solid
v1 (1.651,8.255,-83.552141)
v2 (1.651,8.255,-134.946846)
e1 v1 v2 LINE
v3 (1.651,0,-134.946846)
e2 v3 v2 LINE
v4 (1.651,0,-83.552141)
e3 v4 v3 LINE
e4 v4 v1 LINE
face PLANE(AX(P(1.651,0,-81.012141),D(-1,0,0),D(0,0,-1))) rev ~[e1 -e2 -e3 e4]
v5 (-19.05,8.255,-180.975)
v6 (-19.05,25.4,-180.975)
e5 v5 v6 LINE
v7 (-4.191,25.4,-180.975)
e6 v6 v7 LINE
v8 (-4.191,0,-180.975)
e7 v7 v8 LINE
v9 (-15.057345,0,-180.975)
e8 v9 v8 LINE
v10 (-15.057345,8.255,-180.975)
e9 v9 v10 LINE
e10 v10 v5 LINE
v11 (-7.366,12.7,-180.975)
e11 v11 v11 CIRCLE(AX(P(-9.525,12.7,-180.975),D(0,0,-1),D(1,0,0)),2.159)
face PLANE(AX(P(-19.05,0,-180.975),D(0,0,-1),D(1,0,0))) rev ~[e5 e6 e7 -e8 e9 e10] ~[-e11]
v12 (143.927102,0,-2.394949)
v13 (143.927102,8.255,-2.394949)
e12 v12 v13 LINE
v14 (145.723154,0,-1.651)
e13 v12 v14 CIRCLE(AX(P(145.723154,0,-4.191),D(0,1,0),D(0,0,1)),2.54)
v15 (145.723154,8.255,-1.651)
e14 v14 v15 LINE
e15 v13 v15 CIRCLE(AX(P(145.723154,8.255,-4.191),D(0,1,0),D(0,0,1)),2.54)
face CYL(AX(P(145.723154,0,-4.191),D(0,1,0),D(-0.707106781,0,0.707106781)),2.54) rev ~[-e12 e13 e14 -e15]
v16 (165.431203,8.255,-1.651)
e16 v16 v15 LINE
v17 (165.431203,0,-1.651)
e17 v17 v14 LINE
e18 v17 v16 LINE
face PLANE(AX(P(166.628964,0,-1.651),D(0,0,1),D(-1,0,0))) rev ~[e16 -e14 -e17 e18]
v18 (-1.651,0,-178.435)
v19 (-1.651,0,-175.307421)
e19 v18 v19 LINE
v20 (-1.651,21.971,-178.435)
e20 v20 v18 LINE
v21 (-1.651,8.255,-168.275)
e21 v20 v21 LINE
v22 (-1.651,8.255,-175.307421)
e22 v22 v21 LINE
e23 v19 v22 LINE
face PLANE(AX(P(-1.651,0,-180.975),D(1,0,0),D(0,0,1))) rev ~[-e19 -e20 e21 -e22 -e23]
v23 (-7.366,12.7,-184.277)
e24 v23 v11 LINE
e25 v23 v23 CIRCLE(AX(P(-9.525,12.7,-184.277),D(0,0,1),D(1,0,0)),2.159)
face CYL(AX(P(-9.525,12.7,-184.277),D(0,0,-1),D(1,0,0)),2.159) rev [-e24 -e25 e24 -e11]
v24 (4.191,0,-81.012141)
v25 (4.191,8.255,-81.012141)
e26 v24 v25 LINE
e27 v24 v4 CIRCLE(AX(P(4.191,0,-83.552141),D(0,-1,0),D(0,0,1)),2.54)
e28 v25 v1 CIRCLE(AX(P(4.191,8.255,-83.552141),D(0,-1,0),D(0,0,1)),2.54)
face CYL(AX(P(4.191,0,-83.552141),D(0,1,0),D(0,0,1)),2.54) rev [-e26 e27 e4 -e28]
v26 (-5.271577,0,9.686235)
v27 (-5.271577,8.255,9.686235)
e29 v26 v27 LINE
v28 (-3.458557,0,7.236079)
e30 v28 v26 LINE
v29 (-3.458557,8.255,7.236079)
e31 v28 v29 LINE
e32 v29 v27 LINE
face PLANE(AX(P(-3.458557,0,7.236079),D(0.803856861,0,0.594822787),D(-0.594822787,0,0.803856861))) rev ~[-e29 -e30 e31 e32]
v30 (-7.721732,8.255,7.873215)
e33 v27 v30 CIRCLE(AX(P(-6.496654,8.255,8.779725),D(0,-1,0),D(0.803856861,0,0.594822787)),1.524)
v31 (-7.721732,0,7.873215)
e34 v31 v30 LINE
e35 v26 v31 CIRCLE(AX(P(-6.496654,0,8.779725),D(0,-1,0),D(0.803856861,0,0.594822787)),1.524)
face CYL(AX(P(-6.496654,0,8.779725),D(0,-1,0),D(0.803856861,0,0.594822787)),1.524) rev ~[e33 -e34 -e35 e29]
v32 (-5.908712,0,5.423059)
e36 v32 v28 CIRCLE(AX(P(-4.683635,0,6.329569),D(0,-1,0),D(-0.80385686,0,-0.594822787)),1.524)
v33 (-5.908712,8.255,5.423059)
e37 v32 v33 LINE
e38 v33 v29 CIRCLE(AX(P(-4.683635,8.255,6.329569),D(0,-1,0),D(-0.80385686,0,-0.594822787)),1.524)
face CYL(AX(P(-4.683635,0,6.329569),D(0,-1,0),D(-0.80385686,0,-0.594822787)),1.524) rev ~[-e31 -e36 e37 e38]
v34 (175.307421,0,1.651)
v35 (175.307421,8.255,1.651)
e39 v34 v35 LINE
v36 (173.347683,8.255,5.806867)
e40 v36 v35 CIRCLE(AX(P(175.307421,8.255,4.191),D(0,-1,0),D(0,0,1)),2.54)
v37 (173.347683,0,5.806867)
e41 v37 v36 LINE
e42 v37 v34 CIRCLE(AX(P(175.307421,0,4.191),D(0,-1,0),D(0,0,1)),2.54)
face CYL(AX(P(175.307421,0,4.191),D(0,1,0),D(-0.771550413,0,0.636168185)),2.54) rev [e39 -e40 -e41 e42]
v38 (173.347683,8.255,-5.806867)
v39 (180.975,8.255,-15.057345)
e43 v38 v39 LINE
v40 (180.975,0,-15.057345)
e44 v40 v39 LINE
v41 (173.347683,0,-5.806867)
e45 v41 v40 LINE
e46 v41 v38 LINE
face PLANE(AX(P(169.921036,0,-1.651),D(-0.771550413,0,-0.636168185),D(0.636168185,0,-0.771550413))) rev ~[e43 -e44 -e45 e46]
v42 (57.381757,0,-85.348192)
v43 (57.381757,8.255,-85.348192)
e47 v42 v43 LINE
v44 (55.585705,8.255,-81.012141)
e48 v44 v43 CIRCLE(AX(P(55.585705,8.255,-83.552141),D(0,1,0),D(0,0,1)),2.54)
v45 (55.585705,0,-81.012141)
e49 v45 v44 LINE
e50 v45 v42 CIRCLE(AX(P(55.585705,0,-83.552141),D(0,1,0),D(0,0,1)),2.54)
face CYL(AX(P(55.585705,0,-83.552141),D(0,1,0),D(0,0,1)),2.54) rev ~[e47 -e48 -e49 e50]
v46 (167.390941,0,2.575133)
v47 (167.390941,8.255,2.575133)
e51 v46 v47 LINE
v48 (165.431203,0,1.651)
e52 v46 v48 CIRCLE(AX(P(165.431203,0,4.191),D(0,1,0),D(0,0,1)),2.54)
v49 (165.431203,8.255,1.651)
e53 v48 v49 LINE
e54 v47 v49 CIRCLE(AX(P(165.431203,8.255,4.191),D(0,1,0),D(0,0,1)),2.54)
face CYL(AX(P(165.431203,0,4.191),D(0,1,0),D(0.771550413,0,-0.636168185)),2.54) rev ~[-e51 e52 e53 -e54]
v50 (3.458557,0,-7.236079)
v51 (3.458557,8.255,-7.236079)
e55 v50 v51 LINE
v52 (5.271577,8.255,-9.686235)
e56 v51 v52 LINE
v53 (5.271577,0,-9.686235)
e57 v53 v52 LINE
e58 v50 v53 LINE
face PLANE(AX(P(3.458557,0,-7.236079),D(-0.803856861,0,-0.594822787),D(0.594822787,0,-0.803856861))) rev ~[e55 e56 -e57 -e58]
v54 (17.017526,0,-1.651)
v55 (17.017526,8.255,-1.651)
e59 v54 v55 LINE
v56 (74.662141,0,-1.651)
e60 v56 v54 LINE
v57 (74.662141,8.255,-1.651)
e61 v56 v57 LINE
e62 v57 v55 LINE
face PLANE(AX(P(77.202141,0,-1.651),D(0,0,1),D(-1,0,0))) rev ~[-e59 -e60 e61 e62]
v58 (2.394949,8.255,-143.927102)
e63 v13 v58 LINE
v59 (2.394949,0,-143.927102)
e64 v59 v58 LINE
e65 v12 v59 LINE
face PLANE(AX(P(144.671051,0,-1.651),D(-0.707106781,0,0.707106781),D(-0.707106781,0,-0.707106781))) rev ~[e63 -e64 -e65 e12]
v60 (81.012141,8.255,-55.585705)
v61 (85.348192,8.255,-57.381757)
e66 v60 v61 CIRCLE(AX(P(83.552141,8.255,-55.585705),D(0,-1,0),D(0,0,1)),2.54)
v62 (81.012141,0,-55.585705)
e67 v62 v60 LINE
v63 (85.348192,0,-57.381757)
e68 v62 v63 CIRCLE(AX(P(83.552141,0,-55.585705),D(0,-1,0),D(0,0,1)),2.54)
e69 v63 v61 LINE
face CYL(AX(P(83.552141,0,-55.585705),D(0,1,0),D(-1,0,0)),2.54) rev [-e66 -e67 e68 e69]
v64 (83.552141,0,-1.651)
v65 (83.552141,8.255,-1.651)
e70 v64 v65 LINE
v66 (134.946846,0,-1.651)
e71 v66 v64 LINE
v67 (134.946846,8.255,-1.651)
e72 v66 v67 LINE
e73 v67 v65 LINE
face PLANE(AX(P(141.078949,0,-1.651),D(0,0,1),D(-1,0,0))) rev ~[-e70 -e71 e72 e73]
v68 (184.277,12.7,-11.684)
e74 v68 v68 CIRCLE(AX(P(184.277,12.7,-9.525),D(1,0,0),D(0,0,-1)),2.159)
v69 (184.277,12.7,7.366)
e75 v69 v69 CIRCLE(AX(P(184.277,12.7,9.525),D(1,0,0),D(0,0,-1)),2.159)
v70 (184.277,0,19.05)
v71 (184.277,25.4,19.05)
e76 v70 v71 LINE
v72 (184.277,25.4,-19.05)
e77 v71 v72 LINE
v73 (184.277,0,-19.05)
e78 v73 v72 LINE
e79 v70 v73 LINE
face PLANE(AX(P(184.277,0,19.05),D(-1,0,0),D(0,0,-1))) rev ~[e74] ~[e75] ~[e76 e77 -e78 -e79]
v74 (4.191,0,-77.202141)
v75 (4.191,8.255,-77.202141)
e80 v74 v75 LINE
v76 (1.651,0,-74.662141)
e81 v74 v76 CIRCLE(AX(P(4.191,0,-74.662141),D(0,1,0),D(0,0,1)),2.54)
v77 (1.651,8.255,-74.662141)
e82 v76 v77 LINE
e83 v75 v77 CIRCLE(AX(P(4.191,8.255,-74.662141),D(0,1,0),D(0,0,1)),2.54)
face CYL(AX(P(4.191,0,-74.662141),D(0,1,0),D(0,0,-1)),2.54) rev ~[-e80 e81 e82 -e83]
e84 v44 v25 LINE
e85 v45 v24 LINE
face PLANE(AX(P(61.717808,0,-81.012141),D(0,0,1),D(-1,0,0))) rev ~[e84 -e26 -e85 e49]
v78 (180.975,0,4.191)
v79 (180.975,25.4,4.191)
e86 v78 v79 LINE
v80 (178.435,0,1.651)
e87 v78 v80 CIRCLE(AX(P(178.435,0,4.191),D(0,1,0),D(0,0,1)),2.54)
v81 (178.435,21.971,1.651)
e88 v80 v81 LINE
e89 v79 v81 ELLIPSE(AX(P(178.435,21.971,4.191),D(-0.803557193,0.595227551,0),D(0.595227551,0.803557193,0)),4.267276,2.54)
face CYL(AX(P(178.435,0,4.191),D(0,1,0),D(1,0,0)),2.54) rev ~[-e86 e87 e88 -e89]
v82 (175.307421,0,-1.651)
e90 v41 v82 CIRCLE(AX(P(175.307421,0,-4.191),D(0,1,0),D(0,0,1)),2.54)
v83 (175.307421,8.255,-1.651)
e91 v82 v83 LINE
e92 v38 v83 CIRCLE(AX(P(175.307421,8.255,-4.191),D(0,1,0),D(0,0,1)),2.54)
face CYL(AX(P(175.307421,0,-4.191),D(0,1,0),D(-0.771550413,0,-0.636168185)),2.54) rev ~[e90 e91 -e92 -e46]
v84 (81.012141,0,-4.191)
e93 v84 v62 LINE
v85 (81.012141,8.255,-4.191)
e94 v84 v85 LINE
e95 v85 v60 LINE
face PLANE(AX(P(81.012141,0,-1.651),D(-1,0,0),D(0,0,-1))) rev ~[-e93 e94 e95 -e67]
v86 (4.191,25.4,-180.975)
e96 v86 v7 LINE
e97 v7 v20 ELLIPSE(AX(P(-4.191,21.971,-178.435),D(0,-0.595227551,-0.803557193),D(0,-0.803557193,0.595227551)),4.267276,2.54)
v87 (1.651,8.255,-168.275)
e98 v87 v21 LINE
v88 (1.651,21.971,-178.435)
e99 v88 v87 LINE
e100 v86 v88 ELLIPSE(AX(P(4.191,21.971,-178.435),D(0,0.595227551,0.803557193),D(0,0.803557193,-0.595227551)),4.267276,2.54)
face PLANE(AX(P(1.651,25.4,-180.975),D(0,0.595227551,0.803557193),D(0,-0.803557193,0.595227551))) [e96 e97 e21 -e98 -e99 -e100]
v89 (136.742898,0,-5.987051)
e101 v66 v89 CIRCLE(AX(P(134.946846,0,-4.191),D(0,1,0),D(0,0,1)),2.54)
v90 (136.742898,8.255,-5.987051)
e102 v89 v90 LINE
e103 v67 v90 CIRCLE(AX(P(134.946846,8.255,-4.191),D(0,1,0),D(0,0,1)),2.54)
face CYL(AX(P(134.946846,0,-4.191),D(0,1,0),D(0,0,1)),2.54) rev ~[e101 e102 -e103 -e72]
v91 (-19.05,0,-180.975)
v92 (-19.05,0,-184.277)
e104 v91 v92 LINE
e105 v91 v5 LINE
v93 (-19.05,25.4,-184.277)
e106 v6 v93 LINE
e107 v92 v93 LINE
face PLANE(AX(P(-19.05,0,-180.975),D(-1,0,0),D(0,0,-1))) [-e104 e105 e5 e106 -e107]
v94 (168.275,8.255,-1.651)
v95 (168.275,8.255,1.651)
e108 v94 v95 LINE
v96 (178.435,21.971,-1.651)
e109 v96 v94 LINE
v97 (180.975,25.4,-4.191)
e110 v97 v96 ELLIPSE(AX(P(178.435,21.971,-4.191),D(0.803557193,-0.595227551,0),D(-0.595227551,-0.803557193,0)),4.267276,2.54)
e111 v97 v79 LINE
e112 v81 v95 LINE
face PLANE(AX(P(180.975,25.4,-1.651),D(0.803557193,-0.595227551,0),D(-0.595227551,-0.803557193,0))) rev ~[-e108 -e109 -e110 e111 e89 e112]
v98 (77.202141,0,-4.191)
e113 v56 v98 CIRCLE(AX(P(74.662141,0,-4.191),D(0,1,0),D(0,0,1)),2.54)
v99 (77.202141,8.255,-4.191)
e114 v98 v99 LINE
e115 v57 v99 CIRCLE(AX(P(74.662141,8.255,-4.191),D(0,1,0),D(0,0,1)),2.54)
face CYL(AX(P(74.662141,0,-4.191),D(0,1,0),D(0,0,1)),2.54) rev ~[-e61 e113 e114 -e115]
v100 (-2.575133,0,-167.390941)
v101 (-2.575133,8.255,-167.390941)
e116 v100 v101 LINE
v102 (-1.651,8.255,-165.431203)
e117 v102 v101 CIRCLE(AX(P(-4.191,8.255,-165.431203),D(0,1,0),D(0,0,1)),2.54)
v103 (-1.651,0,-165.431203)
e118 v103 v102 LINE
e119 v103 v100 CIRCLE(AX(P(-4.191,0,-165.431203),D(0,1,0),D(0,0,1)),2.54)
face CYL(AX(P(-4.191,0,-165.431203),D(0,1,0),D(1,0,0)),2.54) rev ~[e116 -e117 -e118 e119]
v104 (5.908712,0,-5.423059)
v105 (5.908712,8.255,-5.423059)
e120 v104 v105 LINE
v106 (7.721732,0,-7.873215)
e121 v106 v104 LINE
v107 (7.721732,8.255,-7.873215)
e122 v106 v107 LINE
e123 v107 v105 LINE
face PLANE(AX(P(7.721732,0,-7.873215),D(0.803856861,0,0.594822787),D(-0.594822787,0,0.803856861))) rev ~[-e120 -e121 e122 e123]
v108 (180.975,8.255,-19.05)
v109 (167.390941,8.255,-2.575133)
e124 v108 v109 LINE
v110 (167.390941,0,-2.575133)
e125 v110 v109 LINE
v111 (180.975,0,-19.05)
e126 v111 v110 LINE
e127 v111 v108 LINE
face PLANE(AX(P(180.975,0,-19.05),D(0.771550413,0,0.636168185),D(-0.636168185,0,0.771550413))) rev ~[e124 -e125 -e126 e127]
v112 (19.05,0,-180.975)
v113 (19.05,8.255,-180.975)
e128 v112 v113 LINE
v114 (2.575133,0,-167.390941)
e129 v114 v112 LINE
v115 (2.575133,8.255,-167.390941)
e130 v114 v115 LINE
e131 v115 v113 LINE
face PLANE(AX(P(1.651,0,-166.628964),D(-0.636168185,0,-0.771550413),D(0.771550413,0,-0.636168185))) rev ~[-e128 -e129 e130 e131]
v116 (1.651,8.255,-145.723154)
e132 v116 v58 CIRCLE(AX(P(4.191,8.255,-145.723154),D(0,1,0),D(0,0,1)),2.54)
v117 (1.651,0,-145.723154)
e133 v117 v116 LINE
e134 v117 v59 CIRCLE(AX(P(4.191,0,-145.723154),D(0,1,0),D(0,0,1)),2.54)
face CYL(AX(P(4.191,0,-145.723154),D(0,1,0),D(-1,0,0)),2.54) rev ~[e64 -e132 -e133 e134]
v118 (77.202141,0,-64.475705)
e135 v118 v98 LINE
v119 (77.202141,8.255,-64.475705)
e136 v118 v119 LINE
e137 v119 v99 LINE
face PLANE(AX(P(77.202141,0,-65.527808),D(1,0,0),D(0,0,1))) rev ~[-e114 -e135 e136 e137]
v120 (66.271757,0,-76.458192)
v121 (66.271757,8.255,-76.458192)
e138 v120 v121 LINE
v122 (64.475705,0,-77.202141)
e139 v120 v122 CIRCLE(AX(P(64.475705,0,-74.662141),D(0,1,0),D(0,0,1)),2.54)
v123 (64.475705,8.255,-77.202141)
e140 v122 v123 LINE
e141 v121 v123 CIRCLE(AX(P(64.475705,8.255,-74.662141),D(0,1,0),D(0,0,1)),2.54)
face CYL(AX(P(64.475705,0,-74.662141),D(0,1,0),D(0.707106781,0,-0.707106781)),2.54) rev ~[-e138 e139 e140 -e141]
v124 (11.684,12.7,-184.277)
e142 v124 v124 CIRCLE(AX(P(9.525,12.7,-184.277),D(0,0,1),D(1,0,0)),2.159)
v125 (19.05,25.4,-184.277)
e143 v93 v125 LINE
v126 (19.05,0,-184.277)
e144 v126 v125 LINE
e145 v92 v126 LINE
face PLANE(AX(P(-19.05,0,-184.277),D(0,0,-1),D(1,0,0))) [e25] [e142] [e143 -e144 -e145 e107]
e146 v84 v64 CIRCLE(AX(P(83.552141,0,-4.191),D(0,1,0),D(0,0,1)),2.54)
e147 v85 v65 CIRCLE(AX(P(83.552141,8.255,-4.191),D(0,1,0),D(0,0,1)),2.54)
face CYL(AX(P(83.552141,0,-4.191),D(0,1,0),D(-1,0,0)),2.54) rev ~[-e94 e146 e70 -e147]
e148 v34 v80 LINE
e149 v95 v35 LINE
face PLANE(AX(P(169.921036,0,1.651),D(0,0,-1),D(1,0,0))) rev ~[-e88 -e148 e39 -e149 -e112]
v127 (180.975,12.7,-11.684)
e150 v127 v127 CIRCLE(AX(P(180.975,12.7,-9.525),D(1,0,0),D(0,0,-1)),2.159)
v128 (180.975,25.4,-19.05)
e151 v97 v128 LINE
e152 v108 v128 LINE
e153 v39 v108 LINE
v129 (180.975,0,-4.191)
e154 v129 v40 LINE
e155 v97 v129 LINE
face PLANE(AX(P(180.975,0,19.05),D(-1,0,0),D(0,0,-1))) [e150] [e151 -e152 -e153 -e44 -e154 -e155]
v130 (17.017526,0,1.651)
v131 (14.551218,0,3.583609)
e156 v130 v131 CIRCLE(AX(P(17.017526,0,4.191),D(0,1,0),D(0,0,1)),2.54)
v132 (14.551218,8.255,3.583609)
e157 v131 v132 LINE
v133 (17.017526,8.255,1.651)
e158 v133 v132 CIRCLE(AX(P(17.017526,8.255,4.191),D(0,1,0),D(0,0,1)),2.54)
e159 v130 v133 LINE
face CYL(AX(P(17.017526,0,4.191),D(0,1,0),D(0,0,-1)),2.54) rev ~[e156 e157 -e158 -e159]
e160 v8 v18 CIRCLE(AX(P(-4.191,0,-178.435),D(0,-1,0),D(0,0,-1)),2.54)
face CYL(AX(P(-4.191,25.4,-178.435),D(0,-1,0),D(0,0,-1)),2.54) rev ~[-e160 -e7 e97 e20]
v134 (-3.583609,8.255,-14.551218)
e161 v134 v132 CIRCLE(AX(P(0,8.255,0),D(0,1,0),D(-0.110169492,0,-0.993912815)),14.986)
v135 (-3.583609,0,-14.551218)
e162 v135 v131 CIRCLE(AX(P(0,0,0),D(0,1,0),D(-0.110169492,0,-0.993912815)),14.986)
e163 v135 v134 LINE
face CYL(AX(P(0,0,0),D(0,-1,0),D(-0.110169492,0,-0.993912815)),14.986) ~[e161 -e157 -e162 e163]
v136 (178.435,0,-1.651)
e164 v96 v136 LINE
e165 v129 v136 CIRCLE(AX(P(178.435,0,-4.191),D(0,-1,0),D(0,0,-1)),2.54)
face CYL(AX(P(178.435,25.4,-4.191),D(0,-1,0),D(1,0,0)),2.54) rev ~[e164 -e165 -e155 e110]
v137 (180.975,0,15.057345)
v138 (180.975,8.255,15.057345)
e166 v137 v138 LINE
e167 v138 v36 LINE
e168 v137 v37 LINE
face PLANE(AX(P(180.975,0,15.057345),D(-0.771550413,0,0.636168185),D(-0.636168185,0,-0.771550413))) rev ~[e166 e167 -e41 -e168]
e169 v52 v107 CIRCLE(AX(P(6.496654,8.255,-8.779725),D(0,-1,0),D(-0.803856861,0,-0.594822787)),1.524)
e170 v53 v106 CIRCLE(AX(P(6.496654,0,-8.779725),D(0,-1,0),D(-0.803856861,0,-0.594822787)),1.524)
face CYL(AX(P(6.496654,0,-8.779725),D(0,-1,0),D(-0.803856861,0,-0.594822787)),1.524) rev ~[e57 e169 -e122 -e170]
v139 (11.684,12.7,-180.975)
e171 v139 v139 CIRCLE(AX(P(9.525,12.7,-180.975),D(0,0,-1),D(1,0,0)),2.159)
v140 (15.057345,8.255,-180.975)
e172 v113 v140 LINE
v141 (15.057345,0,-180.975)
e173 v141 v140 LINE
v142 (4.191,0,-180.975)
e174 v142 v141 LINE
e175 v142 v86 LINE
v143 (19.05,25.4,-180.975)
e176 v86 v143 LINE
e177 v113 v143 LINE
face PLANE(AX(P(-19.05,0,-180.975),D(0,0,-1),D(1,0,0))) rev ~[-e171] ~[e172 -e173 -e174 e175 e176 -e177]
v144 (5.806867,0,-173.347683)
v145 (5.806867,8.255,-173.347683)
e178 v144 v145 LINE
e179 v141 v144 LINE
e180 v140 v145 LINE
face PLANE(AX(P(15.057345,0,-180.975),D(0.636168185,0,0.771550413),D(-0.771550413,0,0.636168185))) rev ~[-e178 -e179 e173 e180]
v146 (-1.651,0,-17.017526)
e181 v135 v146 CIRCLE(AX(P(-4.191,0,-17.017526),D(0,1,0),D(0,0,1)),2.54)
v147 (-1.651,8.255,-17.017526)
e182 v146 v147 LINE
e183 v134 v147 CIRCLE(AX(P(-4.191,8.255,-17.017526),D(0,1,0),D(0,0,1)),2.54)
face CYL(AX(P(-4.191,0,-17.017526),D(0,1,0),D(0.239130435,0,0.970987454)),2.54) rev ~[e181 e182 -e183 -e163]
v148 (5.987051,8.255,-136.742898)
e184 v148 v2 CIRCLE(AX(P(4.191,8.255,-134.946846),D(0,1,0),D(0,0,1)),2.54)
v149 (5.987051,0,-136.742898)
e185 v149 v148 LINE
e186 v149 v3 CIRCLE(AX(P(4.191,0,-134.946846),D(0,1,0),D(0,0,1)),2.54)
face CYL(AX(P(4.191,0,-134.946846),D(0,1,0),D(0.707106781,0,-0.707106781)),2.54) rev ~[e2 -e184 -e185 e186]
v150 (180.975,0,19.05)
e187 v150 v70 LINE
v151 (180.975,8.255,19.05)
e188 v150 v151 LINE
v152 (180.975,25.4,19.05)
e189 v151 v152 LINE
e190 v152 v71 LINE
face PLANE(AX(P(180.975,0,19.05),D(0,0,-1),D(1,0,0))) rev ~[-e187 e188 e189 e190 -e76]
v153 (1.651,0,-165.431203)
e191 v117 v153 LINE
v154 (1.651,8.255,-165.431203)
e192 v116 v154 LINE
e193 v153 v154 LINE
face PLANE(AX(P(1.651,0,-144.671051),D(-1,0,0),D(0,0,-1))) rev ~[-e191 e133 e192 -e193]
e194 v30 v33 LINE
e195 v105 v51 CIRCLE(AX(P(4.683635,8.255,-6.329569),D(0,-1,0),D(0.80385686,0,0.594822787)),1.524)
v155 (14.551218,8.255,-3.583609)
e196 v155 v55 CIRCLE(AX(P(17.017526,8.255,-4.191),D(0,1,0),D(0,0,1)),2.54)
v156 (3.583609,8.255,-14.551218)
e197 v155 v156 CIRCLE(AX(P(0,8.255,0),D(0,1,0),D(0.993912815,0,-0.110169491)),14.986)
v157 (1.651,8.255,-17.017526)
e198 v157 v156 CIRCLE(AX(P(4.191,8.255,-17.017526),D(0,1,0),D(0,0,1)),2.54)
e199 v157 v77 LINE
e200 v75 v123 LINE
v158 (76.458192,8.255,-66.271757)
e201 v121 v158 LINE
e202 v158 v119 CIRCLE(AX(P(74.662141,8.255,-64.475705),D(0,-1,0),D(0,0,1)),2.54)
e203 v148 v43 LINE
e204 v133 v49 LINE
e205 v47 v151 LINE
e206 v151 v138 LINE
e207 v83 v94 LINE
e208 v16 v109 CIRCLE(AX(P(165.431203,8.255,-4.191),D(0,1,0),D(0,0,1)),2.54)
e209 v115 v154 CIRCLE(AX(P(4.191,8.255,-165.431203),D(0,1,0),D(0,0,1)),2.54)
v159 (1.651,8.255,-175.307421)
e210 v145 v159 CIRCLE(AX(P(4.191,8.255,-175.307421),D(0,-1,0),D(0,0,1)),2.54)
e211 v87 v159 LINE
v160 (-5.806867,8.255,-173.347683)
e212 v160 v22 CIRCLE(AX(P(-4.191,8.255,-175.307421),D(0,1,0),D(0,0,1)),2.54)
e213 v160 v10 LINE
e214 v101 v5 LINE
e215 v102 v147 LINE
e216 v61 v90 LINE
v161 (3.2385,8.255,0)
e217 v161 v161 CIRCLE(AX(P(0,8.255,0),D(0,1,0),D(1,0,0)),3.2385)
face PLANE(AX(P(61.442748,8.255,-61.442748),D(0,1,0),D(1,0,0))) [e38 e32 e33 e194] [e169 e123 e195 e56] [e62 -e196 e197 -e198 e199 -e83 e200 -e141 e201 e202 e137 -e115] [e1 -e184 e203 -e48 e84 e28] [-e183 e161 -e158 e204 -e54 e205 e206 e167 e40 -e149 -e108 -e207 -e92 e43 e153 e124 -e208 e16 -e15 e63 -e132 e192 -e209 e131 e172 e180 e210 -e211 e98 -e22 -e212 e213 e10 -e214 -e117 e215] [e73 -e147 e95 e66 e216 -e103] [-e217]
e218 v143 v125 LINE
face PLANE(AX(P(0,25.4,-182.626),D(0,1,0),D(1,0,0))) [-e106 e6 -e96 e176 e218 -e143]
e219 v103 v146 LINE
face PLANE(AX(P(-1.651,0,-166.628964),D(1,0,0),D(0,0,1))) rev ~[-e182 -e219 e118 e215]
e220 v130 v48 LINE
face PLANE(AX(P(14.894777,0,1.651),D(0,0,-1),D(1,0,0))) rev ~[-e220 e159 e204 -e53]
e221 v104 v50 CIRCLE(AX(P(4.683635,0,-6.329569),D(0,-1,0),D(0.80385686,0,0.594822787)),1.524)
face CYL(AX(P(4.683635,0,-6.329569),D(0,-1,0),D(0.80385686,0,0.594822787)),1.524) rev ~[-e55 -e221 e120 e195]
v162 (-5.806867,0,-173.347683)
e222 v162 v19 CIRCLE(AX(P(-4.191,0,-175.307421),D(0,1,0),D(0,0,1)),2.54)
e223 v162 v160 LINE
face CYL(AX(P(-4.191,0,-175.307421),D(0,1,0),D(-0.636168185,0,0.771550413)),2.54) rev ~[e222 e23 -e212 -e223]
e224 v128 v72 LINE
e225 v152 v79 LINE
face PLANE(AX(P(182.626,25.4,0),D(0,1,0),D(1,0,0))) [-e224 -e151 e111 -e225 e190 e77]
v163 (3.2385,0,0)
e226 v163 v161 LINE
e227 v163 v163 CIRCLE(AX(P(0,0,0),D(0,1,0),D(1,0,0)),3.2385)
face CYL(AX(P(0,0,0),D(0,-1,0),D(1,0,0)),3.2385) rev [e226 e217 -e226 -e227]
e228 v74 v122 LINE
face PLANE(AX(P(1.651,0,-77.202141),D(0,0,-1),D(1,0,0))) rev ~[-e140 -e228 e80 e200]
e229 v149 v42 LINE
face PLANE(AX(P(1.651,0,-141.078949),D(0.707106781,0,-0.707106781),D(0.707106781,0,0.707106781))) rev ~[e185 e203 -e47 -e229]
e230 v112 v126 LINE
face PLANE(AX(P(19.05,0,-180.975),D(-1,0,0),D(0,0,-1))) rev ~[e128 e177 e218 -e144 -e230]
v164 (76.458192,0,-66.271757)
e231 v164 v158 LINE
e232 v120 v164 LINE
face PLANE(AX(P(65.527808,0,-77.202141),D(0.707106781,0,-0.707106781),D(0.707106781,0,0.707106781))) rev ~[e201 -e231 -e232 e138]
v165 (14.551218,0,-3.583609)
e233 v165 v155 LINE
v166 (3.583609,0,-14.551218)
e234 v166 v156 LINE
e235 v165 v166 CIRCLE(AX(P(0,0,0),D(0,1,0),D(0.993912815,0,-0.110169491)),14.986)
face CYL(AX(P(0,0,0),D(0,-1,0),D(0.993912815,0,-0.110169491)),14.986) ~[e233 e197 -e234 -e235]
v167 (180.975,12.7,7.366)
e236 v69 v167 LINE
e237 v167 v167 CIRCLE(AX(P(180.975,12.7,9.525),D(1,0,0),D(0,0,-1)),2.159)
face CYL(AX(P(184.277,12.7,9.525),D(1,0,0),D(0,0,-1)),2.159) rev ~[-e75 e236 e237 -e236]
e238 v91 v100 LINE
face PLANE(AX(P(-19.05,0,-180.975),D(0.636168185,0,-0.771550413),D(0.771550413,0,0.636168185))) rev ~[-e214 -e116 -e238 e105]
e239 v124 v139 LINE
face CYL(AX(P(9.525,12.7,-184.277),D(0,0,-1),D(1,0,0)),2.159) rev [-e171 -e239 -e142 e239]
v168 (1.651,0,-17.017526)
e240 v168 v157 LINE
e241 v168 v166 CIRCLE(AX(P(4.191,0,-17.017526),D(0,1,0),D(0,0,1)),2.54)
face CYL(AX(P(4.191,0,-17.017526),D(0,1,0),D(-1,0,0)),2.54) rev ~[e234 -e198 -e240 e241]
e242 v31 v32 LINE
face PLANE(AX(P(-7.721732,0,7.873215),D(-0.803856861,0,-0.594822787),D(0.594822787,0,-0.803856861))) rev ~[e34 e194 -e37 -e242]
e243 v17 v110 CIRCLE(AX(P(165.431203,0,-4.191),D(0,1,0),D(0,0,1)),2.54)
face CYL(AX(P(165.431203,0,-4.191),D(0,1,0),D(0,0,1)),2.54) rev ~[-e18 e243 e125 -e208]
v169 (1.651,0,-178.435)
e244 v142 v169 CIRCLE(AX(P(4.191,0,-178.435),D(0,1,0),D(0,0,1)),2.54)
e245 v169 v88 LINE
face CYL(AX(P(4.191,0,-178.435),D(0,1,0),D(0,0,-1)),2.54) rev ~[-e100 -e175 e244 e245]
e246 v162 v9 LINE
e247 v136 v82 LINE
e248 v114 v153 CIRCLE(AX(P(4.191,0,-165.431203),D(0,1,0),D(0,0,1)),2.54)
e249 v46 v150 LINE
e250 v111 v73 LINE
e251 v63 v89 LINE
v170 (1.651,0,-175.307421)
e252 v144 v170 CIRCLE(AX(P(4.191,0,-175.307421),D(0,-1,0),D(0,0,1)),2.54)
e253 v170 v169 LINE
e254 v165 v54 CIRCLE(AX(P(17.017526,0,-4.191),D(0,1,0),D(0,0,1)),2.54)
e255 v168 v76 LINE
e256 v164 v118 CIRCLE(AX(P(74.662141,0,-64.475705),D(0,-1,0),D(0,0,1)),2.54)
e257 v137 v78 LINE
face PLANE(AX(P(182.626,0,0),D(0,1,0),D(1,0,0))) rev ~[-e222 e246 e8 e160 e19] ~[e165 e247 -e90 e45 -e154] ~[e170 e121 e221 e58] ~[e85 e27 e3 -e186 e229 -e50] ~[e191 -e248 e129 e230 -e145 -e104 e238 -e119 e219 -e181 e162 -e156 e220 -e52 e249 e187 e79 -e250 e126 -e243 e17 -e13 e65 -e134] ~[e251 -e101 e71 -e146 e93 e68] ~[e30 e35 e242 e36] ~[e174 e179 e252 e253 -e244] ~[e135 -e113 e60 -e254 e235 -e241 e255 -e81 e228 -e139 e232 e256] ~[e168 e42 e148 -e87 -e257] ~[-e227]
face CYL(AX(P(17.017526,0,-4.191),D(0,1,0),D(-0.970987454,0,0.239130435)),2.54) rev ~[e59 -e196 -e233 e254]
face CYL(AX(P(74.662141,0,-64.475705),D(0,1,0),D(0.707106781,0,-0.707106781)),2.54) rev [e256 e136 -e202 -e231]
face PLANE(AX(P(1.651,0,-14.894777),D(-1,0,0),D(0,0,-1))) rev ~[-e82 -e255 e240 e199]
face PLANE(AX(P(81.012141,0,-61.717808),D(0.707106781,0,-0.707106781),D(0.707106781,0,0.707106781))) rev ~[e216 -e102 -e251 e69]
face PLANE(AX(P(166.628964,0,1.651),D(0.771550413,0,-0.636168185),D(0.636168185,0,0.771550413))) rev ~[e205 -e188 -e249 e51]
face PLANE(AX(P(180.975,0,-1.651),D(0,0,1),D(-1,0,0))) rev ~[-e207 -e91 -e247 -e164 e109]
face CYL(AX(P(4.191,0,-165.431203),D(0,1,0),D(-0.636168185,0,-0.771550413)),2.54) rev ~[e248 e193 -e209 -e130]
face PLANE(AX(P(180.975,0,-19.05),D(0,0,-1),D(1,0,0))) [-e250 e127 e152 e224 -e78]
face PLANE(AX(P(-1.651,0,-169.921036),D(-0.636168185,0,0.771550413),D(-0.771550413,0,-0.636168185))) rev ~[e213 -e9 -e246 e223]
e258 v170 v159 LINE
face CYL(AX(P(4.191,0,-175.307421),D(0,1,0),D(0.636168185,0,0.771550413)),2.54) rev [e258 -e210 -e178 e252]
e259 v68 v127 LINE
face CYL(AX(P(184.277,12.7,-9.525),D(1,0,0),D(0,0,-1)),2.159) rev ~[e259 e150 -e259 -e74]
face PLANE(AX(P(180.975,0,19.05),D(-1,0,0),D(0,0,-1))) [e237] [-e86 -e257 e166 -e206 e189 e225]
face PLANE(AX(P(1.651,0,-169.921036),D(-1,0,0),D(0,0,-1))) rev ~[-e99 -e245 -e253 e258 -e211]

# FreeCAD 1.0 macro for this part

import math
import FreeCAD as App
import Part
import Sketcher

V = App.Vector
Q = App.Units.Quantity


def edges_at(feature, points):
    """Names of the edges that pass closest to the given points."""
    edges = feature.Shape.Edges
    near = lambda p: min(range(len(edges)), key=lambda i: edges[i].distToShape(Part.Vertex(*p))[0])
    return sorted({f"Edge{near(p) + 1}" for p in points})

doc = App.newDocument("Part")
params = doc.addObject("Spreadsheet::Sheet", "Params")
for row, (alias, value) in enumerate([
    ("sketch1_radius", "0.59 in"),
    ("sketch1_radius2", "0.06 in"),
    ("sketch1_diameter", "0.255 in"),
    ("sketch1_width", "0.13 in"),
    ("sketch1_length", "0.12 in"),
    ("pad1_length", "0.325 in"),
    ("sketch2_width", "1.5 in"),
    ("sketch2_width2", "0.13 in"),
    ("pad2_length", "1 in"),
    ("sketch3_diameter", "0.17 in"),
    ("sketch4_width", "0.5 in"),
    ("sketch4_height", "0.13 in"),
    ("pad3_length", "1 in"),
    ("sketch5_width", "0.5 in"),
    ("sketch5_height", "0.675 in"),
    ("pocket2_length", "1 in"),
    ("sketch6_height", "0.5 in"),
    ("sketch6_width", "0.13 in"),
    ("pad4_length", "1 in"),
    ("sketch7_height", "0.5 in"),
    ("sketch7_width", "0.675 in"),
    ("pocket3_length", "1 in"),
    ("fillet_radius", "0.1 in"),
], start=1):
    params.set(f"A{row}", alias)
    params.set(f"B{row}", "=" + value)
    params.setAlias(f"B{row}", alias)

body = doc.addObject("PartDesign::Body", "Body")

# Sketch on XZ plane
sketch1 = body.newObject("Sketcher::SketchObject", "Sketch")
sketch1.AttachmentSupport = (doc.getObject("XZ_Plane"), [""])
sketch1.MapMode = "FlatFace"
sketch1.addGeometry(Part.LineSegment(V(-1.651, -166.628964, 0), V(-1.651, -14.894777, 0)), False)
sketch1.addGeometry(Part.ArcOfCircle(Part.Circle(V(0, 0, 0), V(0, 0, 1), 14.986), math.radians(6.325086), math.radians(263.674914)), False)
sketch1.addGeometry(Part.LineSegment(V(14.894777, 1.651, 0), V(166.628964, 1.651, 0)), False)
sketch1.addGeometry(Part.LineSegment(V(166.628964, 1.651, 0), V(180.975, 19.05, 0)), False)
sketch1.addGeometry(Part.LineSegment(V(180.975, 19.05, 0), V(180.975, 15.057345, 0)), False)
sketch1.addGeometry(Part.LineSegment(V(180.975, 15.057345, 0), V(169.921036, 1.651, 0)), False)
sketch1.addGeometry(Part.LineSegment(V(169.921036, 1.651, 0), V(180.975, 1.651, 0)), False)
sketch1.addGeometry(Part.LineSegment(V(180.975, 1.651, 0), V(180.975, -1.651, 0)), False)
sketch1.addGeometry(Part.LineSegment(V(180.975, -1.651, 0), V(169.921036, -1.651, 0)), False)
sketch1.addGeometry(Part.LineSegment(V(169.921036, -1.651, 0), V(180.975, -15.057345, 0)), False)
sketch1.addGeometry(Part.LineSegment(V(180.975, -15.057345, 0), V(180.975, -19.05, 0)), False)
sketch1.addGeometry(Part.LineSegment(V(180.975, -19.05, 0), V(166.628964, -1.651, 0)), False)
sketch1.addGeometry(Part.LineSegment(V(166.628964, -1.651, 0), V(144.671051, -1.651, 0)), False)
sketch1.addGeometry(Part.LineSegment(V(144.671051, -1.651, 0), V(1.651, -144.671051, 0)), False)
sketch1.addGeometry(Part.LineSegment(V(1.651, -144.671051, 0), V(1.651, -166.628964, 0)), False)
sketch1.addGeometry(Part.LineSegment(V(1.651, -166.628964, 0), V(19.05, -180.975, 0)), False)
sketch1.addGeometry(Part.LineSegment(V(19.05, -180.975, 0), V(15.057345, -180.975, 0)), False)
sketch1.addGeometry(Part.LineSegment(V(15.057345, -180.975, 0), V(1.651, -169.921036, 0)), False)
sketch1.addGeometry(Part.LineSegment(V(1.651, -169.921036, 0), V(1.651, -180.975, 0)), False)
sketch1.addGeometry(Part.LineSegment(V(1.651, -180.975, 0), V(-1.651, -180.975, 0)), False)
sketch1.addGeometry(Part.LineSegment(V(-1.651, -180.975, 0), V(-1.651, -169.921036, 0)), False)
sketch1.addGeometry(Part.LineSegment(V(-1.651, -169.921036, 0), V(-15.057345, -180.975, 0)), False)
sketch1.addGeometry(Part.LineSegment(V(-15.057345, -180.975, 0), V(-19.05, -180.975, 0)), False)
sketch1.addGeometry(Part.LineSegment(V(-19.05, -180.975, 0), V(-1.651, -166.628964, 0)), False)
sketch1.addGeometry(Part.ArcOfCircle(Part.Circle(V(-6.496654, 8.779725, 0), V(0, 0, 1), 1.524), math.radians(36.5), math.radians(216.5)), False)
sketch1.addGeometry(Part.LineSegment(V(-7.721732, 7.873215, 0), V(-5.908712, 5.423059, 0)), False)
sketch1.addGeometry(Part.ArcOfCircle(Part.Circle(V(-4.683635, 6.329569, 0), V(0, 0, 1), 1.524), math.radians(-143.5), math.radians(36.5)), False)
sketch1.addGeometry(Part.LineSegment(V(-3.458557, 7.236079, 0), V(-5.271577, 9.686235, 0)), False)
sketch1.addGeometry(Part.Circle(V(0, 0, 0), V(0, 0, 1), 3.2385), False)
sketch1.addGeometry(Part.LineSegment(V(7.721732, -7.873215, 0), V(5.908712, -5.423059, 0)), False)
sketch1.addGeometry(Part.ArcOfCircle(Part.Circle(V(4.683635, -6.329569, 0), V(0, 0, 1), 1.524), math.radians(36.5), math.radians(216.5)), False)
sketch1.addGeometry(Part.LineSegment(V(3.458557, -7.236079, 0), V(5.271577, -9.686235, 0)), False)
sketch1.addGeometry(Part.ArcOfCircle(Part.Circle(V(6.496654, -8.779725, 0), V(0, 0, 1), 1.524), math.radians(-143.5), math.radians(36.5)), False)
sketch1.addGeometry(Part.LineSegment(V(77.202141, -65.527808, 0), V(77.202141, -1.651, 0)), False)
sketch1.addGeometry(Part.LineSegment(V(77.202141, -1.651, 0), V(14.894777, -1.651, 0)), False)
sketch1.addGeometry(Part.ArcOfCircle(Part.Circle(V(0, 0, 0), V(0, 0, 1), 14.986), math.radians(-83.674914), math.radians(-6.325086)), False)
sketch1.addGeometry(Part.LineSegment(V(1.651, -14.894777, 0), V(1.651, -77.202141, 0)), False)
sketch1.addGeometry(Part.LineSegment(V(1.651, -77.202141, 0), V(65.527808, -77.202141, 0)), False)
sketch1.addGeometry(Part.LineSegment(V(65.527808, -77.202141, 0), V(77.202141, -65.527808, 0)), False)
sketch1.addGeometry(Part.LineSegment(V(81.012141, -61.717808, 0), V(141.078949, -1.651, 0)), False)
sketch1.addGeometry(Part.LineSegment(V(141.078949, -1.651, 0), V(81.012141, -1.651, 0)), False)
sketch1.addGeometry(Part.LineSegment(V(81.012141, -1.651, 0), V(81.012141, -61.717808, 0)), False)
sketch1.addGeometry(Part.LineSegment(V(61.717808, -81.012141, 0), V(1.651, -81.012141, 0)), False)
sketch1.addGeometry(Part.LineSegment(V(1.651, -81.012141, 0), V(1.651, -141.078949, 0)), False)
sketch1.addGeometry(Part.LineSegment(V(1.651, -141.078949, 0), V(61.717808, -81.012141, 0)), False)
sketch1.addConstraint(Sketcher.Constraint("Coincident", 0, 2, 1, 2))
sketch1.addConstraint(Sketcher.Constraint("Coincident", 1, 1, 2, 1))
sketch1.addConstraint(Sketcher.Constraint("Coincident", 2, 2, 3, 1))
sketch1.addConstraint(Sketcher.Constraint("Coincident", 3, 2, 4, 1))
sketch1.addConstraint(Sketcher.Constraint("Coincident", 4, 2, 5, 1))
sketch1.addConstraint(Sketcher.Constraint("Coincident", 5, 2, 6, 1))
sketch1.addConstraint(Sketcher.Constraint("Coincident", 6, 2, 7, 1))
sketch1.addConstraint(Sketcher.Constraint("Coincident", 7, 2, 8, 1))
sketch1.addConstraint(Sketcher.Constraint("Coincident", 8, 2, 9, 1))
sketch1.addConstraint(Sketcher.Constraint("Coincident", 9, 2, 10, 1))
sketch1.addConstraint(Sketcher.Constraint("Coincident", 10, 2, 11, 1))
sketch1.addConstraint(Sketcher.Constraint("Coincident", 11, 2, 12, 1))
sketch1.addConstraint(Sketcher.Constraint("Coincident", 12, 2, 13, 1))
sketch1.addConstraint(Sketcher.Constraint("Coincident", 13, 2, 14, 1))
sketch1.addConstraint(Sketcher.Constraint("Coincident", 14, 2, 15, 1))
sketch1.addConstraint(Sketcher.Constraint("Coincident", 15, 2, 16, 1))
sketch1.addConstraint(Sketcher.Constraint("Coincident", 16, 2, 17, 1))
sketch1.addConstraint(Sketcher.Constraint("Coincident", 17, 2, 18, 1))
sketch1.addConstraint(Sketcher.Constraint("Coincident", 18, 2, 19, 1))
sketch1.addConstraint(Sketcher.Constraint("Coincident", 19, 2, 20, 1))
sketch1.addConstraint(Sketcher.Constraint("Coincident", 20, 2, 21, 1))
sketch1.addConstraint(Sketcher.Constraint("Coincident", 21, 2, 22, 1))
sketch1.addConstraint(Sketcher.Constraint("Coincident", 22, 2, 23, 1))
sketch1.addConstraint(Sketcher.Constraint("Coincident", 23, 2, 0, 1))
sketch1.addConstraint(Sketcher.Constraint("Tangent", 24, 2, 25, 1))
sketch1.addConstraint(Sketcher.Constraint("Tangent", 25, 2, 26, 1))
sketch1.addConstraint(Sketcher.Constraint("Tangent", 26, 2, 27, 1))
sketch1.addConstraint(Sketcher.Constraint("Tangent", 27, 2, 24, 1))
sketch1.addConstraint(Sketcher.Constraint("Tangent", 29, 2, 30, 1))
sketch1.addConstraint(Sketcher.Constraint("Tangent", 30, 2, 31, 1))
sketch1.addConstraint(Sketcher.Constraint("Tangent", 31, 2, 32, 1))
sketch1.addConstraint(Sketcher.Constraint("Tangent", 32, 2, 29, 1))
sketch1.addConstraint(Sketcher.Constraint("Coincident", 33, 2, 34, 1))
sketch1.addConstraint(Sketcher.Constraint("Coincident", 34, 2, 35, 2))
sketch1.addConstraint(Sketcher.Constraint("Coincident", 35, 1, 36, 1))
sketch1.addConstraint(Sketcher.Constraint("Coincident", 36, 2, 37, 1))
sketch1.addConstraint(Sketcher.Constraint("Coincident", 37, 2, 38, 1))
sketch1.addConstraint(Sketcher.Constraint("Coincident", 38, 2, 33, 1))
sketch1.addConstraint(Sketcher.Constraint("Coincident", 39, 2, 40, 1))
sketch1.addConstraint(Sketcher.Constraint("Coincident", 40, 2, 41, 1))
sketch1.addConstraint(Sketcher.Constraint("Coincident", 41, 2, 39, 1))
sketch1.addConstraint(Sketcher.Constraint("Coincident", 42, 2, 43, 1))
sketch1.addConstraint(Sketcher.Constraint("Coincident", 43, 2, 44, 1))
sketch1.addConstraint(Sketcher.Constraint("Coincident", 44, 2, 42, 1))
sketch1.addConstraint(Sketcher.Constraint("Vertical", 0))
sketch1.addConstraint(Sketcher.Constraint("Horizontal", 2))
sketch1.addConstraint(Sketcher.Constraint("Vertical", 4))
sketch1.addConstraint(Sketcher.Constraint("Horizontal", 6))
sketch1.addConstraint(Sketcher.Constraint("Vertical", 7))
sketch1.addConstraint(Sketcher.Constraint("Horizontal", 8))
sketch1.addConstraint(Sketcher.Constraint("Vertical", 10))
sketch1.addConstraint(Sketcher.Constraint("Horizontal", 12))
sketch1.addConstraint(Sketcher.Constraint("Vertical", 14))
sketch1.addConstraint(Sketcher.Constraint("Horizontal", 16))
sketch1.addConstraint(Sketcher.Constraint("Vertical", 18))
sketch1.addConstraint(Sketcher.Constraint("Horizontal", 19))
sketch1.addConstraint(Sketcher.Constraint("Vertical", 20))
sketch1.addConstraint(Sketcher.Constraint("Horizontal", 22))
sketch1.addConstraint(Sketcher.Constraint("Vertical", 33))
sketch1.addConstraint(Sketcher.Constraint("Horizontal", 34))
sketch1.addConstraint(Sketcher.Constraint("Vertical", 36))
sketch1.addConstraint(Sketcher.Constraint("Horizontal", 37))
sketch1.addConstraint(Sketcher.Constraint("Horizontal", 40))
sketch1.addConstraint(Sketcher.Constraint("Vertical", 41))
sketch1.addConstraint(Sketcher.Constraint("Horizontal", 42))
sketch1.addConstraint(Sketcher.Constraint("Vertical", 43))
sketch1.addConstraint(Sketcher.Constraint("Coincident", 1, 3, -1, 1))
sketch1.addConstraint(Sketcher.Constraint("Coincident", 28, 3, -1, 1))
sketch1.addConstraint(Sketcher.Constraint("Coincident", 35, 3, -1, 1))
sketch1.addConstraint(Sketcher.Constraint("Equal", 24, 26))
sketch1.addConstraint(Sketcher.Constraint("Equal", 26, 30))
sketch1.addConstraint(Sketcher.Constraint("Equal", 30, 32))
sketch1.addConstraint(Sketcher.Constraint("Equal", 1, 35))
sketch1.addConstraint(Sketcher.Constraint("Symmetric", 26, 3, 30, 3, -1, 1))
sketch1.addConstraint(Sketcher.Constraint("Symmetric", 24, 3, 32, 3, -1, 1))
sketch1.addConstraint(Sketcher.Constraint("Symmetric", 17, 2, 20, 2, -2))
sketch1.addConstraint(Sketcher.Constraint("Symmetric", 16, 2, 21, 2, -2))
sketch1.addConstraint(Sketcher.Constraint("Symmetric", 14, 2, 23, 2, -2))
sketch1.addConstraint(Sketcher.Constraint("Symmetric", 5, 2, 8, 2, -1))
sketch1.addConstraint(Sketcher.Constraint("Symmetric", 4, 2, 9, 2, -1))
sketch1.addConstraint(Sketcher.Constraint("Symmetric", 2, 2, 11, 2, -1))
sketch1.addConstraint(Sketcher.Constraint("Parallel", 3, 5))
sketch1.addConstraint(Sketcher.Constraint("Parallel", 9, 11))
sketch1.addConstraint(Sketcher.Constraint("Perpendicular", 5, 15))
sketch1.addConstraint(Sketcher.Constraint("Parallel", 15, 17))
sketch1.addConstraint(Sketcher.Constraint("Parallel", 21, 23))
sketch1.addConstraint(Sketcher.Constraint("Parallel", 13, 38))
sketch1.addConstraint(Sketcher.Constraint("Parallel", 38, 39))
sketch1.addConstraint(Sketcher.Constraint("Parallel", 39, 44))
sketch1.addConstraint(Sketcher.Constraint("Horizontal", 2, 2, 5, 2))
sketch1.addConstraint(Sketcher.Constraint("Horizontal", 16, 2, 18, 2))
sketch1.addConstraint(Sketcher.Constraint("Horizontal", 12, 2, 33, 2))
sketch1.addConstraint(Sketcher.Constraint("Horizontal", 0, 2, 35, 1))
sketch1.addConstraint(Sketcher.Constraint("Horizontal", 34, 2, 39, 2))
sketch1.addConstraint(Sketcher.Constraint("Vertical", 4, 2, 6, 2))
sketch1.addConstraint(Sketcher.Constraint("Vertical", 14, 2, 17, 2))
sketch1.addConstraint(Sketcher.Constraint("Vertical", 36, 2, 42, 2))
sketch1.addConstraint(Sketcher.Constraint("Equal", 40, 42))
sketch1.addConstraint(Sketcher.Constraint("Equal", 2, 0))
sketch1.addConstraint(Sketcher.Constraint("Equal", 22, 4))
sketch1.addConstraint(Sketcher.Constraint("Equal", 19, 7))
sketch1.addConstraint(Sketcher.Constraint("Equal", 12, 14))
sketch1.addConstraint(Sketcher.Constraint("Equal", 8, 18))
sketch1.addConstraint(Sketcher.Constraint("Equal", 37, 33))
sketch1.addConstraint(Sketcher.Constraint("Radius", 1, Q("0.59 in")))
sketch1.addConstraint(Sketcher.Constraint("Radius", 24, Q("0.06 in")))
sketch1.addConstraint(Sketcher.Constraint("Diameter", 28, Q("0.255 in")))
sketch1.addConstraint(Sketcher.Constraint("DistanceX", 19, 2, 19, 1, Q("0.13 in")))
sketch1.addConstraint(Sketcher.Constraint("Angle", 25, Q("-53.5 deg")))
sketch1.addConstraint(Sketcher.Constraint("Distance", 25, Q("0.12 in")))
sketch1.addConstraint(Sketcher.Constraint("Distance", 38, Q("0.65 in")))
sketch1.addConstraint(Sketcher.Constraint("DistanceY", -1, 1, 3, 2, Q("0.75 in")))
sketch1.addConstraint(Sketcher.Constraint("DistanceX", 33, 2, 40, 2, Q("0.15 in")))
sketch1.addConstraint(Sketcher.Constraint("DistanceY", 38, 2, 41, 2, Q("0.15 in")))
sketch1.addConstraint(Sketcher.Constraint("DistanceY", 42, 2, 36, 2, Q("0.15 in")))
sketch1.addConstraint(Sketcher.Constraint("DistanceX", -1, 1, 3, 2, Q("7.125 in")))
sketch1.addConstraint(Sketcher.Constraint("DistanceY", 35, 1, 30, 2, 7.658699))
sketch1.addConstraint(Sketcher.Constraint("Distance", 5, 17.375851))
sketch1.addConstraint(Sketcher.Constraint("DistanceX", 2, 1, 2, 2, 151.734186))
sketch1.addConstraint(Sketcher.Constraint("DistanceX", 12, 2, 12, 1, 21.957912))
sketch1.addConstraint(Sketcher.Constraint("DistanceX", 34, 2, 34, 1, 62.307363))
sketch1.addConstraint(Sketcher.Constraint("DistanceX", 26, 3, 30, 3, 9.367269))
sketch1.setExpression("Constraints[104]", "Params.sketch1_radius")
sketch1.setExpression("Constraints[105]", "Params.sketch1_radius2")
sketch1.setExpression("Constraints[106]", "Params.sketch1_diameter")
sketch1.setExpression("Constraints[107]", "Params.sketch1_width")
sketch1.setExpression("Constraints[109]", "Params.sketch1_length")
pad1 = body.newObject("PartDesign::Pad", "Pad")
pad1.Profile = sketch1
pad1.setExpression("Length", "Params.pad1_length")
pad1.Reversed = True

# Sketch on XZ plane
sketch2 = body.newObject("Sketcher::SketchObject", "Sketch001")
sketch2.AttachmentSupport = (doc.getObject("XZ_Plane"), [""])
sketch2.MapMode = "FlatFace"
sketch2.addGeometry(Part.LineSegment(V(180.975, -19.05, 0), V(180.975, 19.05, 0)), False)
sketch2.addGeometry(Part.LineSegment(V(180.975, 19.05, 0), V(184.277, 19.05, 0)), False)
sketch2.addGeometry(Part.LineSegment(V(184.277, 19.05, 0), V(184.277, -19.05, 0)), False)
sketch2.addGeometry(Part.LineSegment(V(184.277, -19.05, 0), V(180.975, -19.05, 0)), False)
sketch2.addGeometry(Part.LineSegment(V(-19.05, -184.277, 0), V(-19.05, -180.975, 0)), False)
sketch2.addGeometry(Part.LineSegment(V(-19.05, -180.975, 0), V(19.05, -180.975, 0)), False)
sketch2.addGeometry(Part.LineSegment(V(19.05, -180.975, 0), V(19.05, -184.277, 0)), False)
sketch2.addGeometry(Part.LineSegment(V(19.05, -184.277, 0), V(-19.05, -184.277, 0)), False)
sketch2.addConstraint(Sketcher.Constraint("Coincident", 0, 2, 1, 1))
sketch2.addConstraint(Sketcher.Constraint("Coincident", 1, 2, 2, 1))
sketch2.addConstraint(Sketcher.Constraint("Coincident", 2, 2, 3, 1))
sketch2.addConstraint(Sketcher.Constraint("Coincident", 3, 2, 0, 1))
sketch2.addConstraint(Sketcher.Constraint("Coincident", 4, 2, 5, 1))
sketch2.addConstraint(Sketcher.Constraint("Coincident", 5, 2, 6, 1))
sketch2.addConstraint(Sketcher.Constraint("Coincident", 6, 2, 7, 1))
sketch2.addConstraint(Sketcher.Constraint("Coincident", 7, 2, 4, 1))
sketch2.addConstraint(Sketcher.Constraint("Vertical", 0))
sketch2.addConstraint(Sketcher.Constraint("Horizontal", 1))
sketch2.addConstraint(Sketcher.Constraint("Vertical", 2))
sketch2.addConstraint(Sketcher.Constraint("Horizontal", 3))
sketch2.addConstraint(Sketcher.Constraint("Vertical", 4))
sketch2.addConstraint(Sketcher.Constraint("Horizontal", 5))
sketch2.addConstraint(Sketcher.Constraint("Vertical", 6))
sketch2.addConstraint(Sketcher.Constraint("Horizontal", 7))
sketch2.addConstraint(Sketcher.Constraint("Equal", 7, 0))
sketch2.addConstraint(Sketcher.Constraint("Equal", 3, 4))
sketch2.addConstraint(Sketcher.Constraint("DistanceX", 5, 1, 5, 2, Q("1.5 in")))
sketch2.addConstraint(Sketcher.Constraint("DistanceX", 1, 1, 1, 2, Q("0.13 in")))
sketch2.addConstraint(Sketcher.Constraint("DistanceY", -1, 1, 0, 2, Q("0.75 in")))
sketch2.addConstraint(Sketcher.Constraint("DistanceX", 4, 2, -1, 1, Q("0.75 in")))
sketch2.addConstraint(Sketcher.Constraint("DistanceX", -1, 1, 0, 2, Q("7.125 in")))
sketch2.addConstraint(Sketcher.Constraint("DistanceY", 4, 2, -1, 1, Q("7.125 in")))
sketch2.setExpression("Constraints[18]", "Params.sketch2_width")
sketch2.setExpression("Constraints[19]", "Params.sketch2_width2")
pad2 = body.newObject("PartDesign::Pad", "Pad001")
pad2.Profile = sketch2
pad2.setExpression("Length", "Params.pad2_length")
pad2.Reversed = True

# Sketch on YZ plane
sketch3 = body.newObject("Sketcher::SketchObject", "Sketch002")
sketch3.AttachmentSupport = (doc.getObject("YZ_Plane"), [""])
sketch3.MapMode = "FlatFace"
sketch3.AttachmentOffset = App.Placement(V(0, 0, 7.255 * 25.4), App.Rotation())
sketch3.addGeometry(Part.Circle(V(12.7, 9.525, 0), V(0, 0, 1), 2.159), False)
sketch3.addGeometry(Part.Circle(V(12.7, -9.525, 0), V(0, 0, 1), 2.159), False)
sketch3.addConstraint(Sketcher.Constraint("Equal", 0, 1))
sketch3.addConstraint(Sketcher.Constraint("Symmetric", 0, 3, 1, 3, -1))
sketch3.addConstraint(Sketcher.Constraint("Diameter", 0, Q("0.17 in")))
sketch3.addConstraint(Sketcher.Constraint("DistanceX", -1, 1, 0, 3, Q("0.5 in")))
sketch3.addConstraint(Sketcher.Constraint("DistanceY", 1, 3, 0, 3, Q("0.75 in")))
sketch3.setExpression("Constraints[2]", "Params.sketch3_diameter")
pocket1 = body.newObject("PartDesign::Pocket", "Pocket")
pocket1.Profile = sketch3
pocket1.Type = "ThroughAll"
doc.recompute()

datumplane = body.newObject("PartDesign::Plane", "DatumPlane")
datumplane.Placement = App.Placement(V(0, 0, 0), App.Rotation(V(-0.707106781, 0, 0.707106781), V(0, -1, 0), V(0.707106781, 0, 0.707106781), "ZXY"))
mirrored = body.newObject("PartDesign::Mirrored", "Mirrored")
mirrored.Originals = [pocket1]
mirrored.MirrorPlane = (datumplane, [""])
body.Tip = mirrored

# Sketch on XZ plane
sketch4 = body.newObject("Sketcher::SketchObject", "Sketch003")
sketch4.AttachmentSupport = (doc.getObject("XZ_Plane"), [""])
sketch4.MapMode = "FlatFace"
sketch4.addGeometry(Part.LineSegment(V(168.275, -1.651, 0), V(168.275, 1.651, 0)), False)
sketch4.addGeometry(Part.LineSegment(V(168.275, 1.651, 0), V(180.975, 1.651, 0)), False)
sketch4.addGeometry(Part.LineSegment(V(180.975, 1.651, 0), V(180.975, -1.651, 0)), False)
sketch4.addGeometry(Part.LineSegment(V(180.975, -1.651, 0), V(168.275, -1.651, 0)), False)
sketch4.addConstraint(Sketcher.Constraint("Coincident", 0, 2, 1, 1))
sketch4.addConstraint(Sketcher.Constraint("Coincident", 1, 2, 2, 1))
sketch4.addConstraint(Sketcher.Constraint("Coincident", 2, 2, 3, 1))
sketch4.addConstraint(Sketcher.Constraint("Coincident", 3, 2, 0, 1))
sketch4.addConstraint(Sketcher.Constraint("Vertical", 0))
sketch4.addConstraint(Sketcher.Constraint("Horizontal", 1))
sketch4.addConstraint(Sketcher.Constraint("Vertical", 2))
sketch4.addConstraint(Sketcher.Constraint("Horizontal", 3))
sketch4.addConstraint(Sketcher.Constraint("DistanceX", 1, 1, 1, 2, Q("0.5 in")))
sketch4.addConstraint(Sketcher.Constraint("DistanceY", 0, 1, 0, 2, Q("0.13 in")))
sketch4.addConstraint(Sketcher.Constraint("DistanceX", -1, 1, 0, 2, Q("6.625 in")))
sketch4.addConstraint(Sketcher.Constraint("DistanceY", -1, 1, 0, 2, Q("0.065 in")))
sketch4.setExpression("Constraints[8]", "Params.sketch4_width")
sketch4.setExpression("Constraints[9]", "Params.sketch4_height")
pad3 = body.newObject("PartDesign::Pad", "Pad002")
pad3.Profile = sketch4
pad3.setExpression("Length", "Params.pad3_length")
pad3.Reversed = True

# Sketch on XY plane
sketch5 = body.newObject("Sketcher::SketchObject", "Sketch004")
sketch5.AttachmentSupport = (doc.getObject("XY_Plane"), [""])
sketch5.MapMode = "FlatFace"
sketch5.AttachmentOffset = App.Placement(V(0, 0, -0.065 * 25.4), App.Rotation())
sketch5.addGeometry(Part.LineSegment(V(180.975, 25.4, 0), V(168.275, 8.255, 0)), False)
sketch5.addGeometry(Part.LineSegment(V(168.275, 8.255, 0), V(168.275, 25.4, 0)), False)
sketch5.addGeometry(Part.LineSegment(V(168.275, 25.4, 0), V(180.975, 25.4, 0)), False)
sketch5.addConstraint(Sketcher.Constraint("Coincident", 0, 2, 1, 1))
sketch5.addConstraint(Sketcher.Constraint("Coincident", 1, 2, 2, 1))
sketch5.addConstraint(Sketcher.Constraint("Coincident", 2, 2, 0, 1))
sketch5.addConstraint(Sketcher.Constraint("Vertical", 1))
sketch5.addConstraint(Sketcher.Constraint("Horizontal", 2))
sketch5.addConstraint(Sketcher.Constraint("DistanceX", 2, 1, 2, 2, Q("0.5 in")))
sketch5.addConstraint(Sketcher.Constraint("DistanceY", -1, 1, 1, 2, Q("1 in")))
sketch5.addConstraint(Sketcher.Constraint("DistanceY", 1, 1, 1, 2, Q("0.675 in")))
sketch5.addConstraint(Sketcher.Constraint("DistanceX", -1, 1, 0, 2, Q("6.625 in")))
sketch5.setExpression("Constraints[5]", "Params.sketch5_width")
sketch5.setExpression("Constraints[7]", "Params.sketch5_height")
pocket2 = body.newObject("PartDesign::Pocket", "Pocket001")
pocket2.Profile = sketch5
pocket2.setExpression("Length", "Params.pocket2_length")
pocket2.Reversed = True

# Sketch on XZ plane
sketch6 = body.newObject("Sketcher::SketchObject", "Sketch005")
sketch6.AttachmentSupport = (doc.getObject("XZ_Plane"), [""])
sketch6.MapMode = "FlatFace"
sketch6.addGeometry(Part.LineSegment(V(-1.651, -180.975, 0), V(-1.651, -168.275, 0)), False)
sketch6.addGeometry(Part.LineSegment(V(-1.651, -168.275, 0), V(1.651, -168.275, 0)), False)
sketch6.addGeometry(Part.LineSegment(V(1.651, -168.275, 0), V(1.651, -180.975, 0)), False)
sketch6.addGeometry(Part.LineSegment(V(1.651, -180.975, 0), V(-1.651, -180.975, 0)), False)
sketch6.addConstraint(Sketcher.Constraint("Coincident", 0, 2, 1, 1))
sketch6.addConstraint(Sketcher.Constraint("Coincident", 1, 2, 2, 1))
sketch6.addConstraint(Sketcher.Constraint("Coincident", 2, 2, 3, 1))
sketch6.addConstraint(Sketcher.Constraint("Coincident", 3, 2, 0, 1))
sketch6.addConstraint(Sketcher.Constraint("Vertical", 0))
sketch6.addConstraint(Sketcher.Constraint("Horizontal", 1))
sketch6.addConstraint(Sketcher.Constraint("Vertical", 2))
sketch6.addConstraint(Sketcher.Constraint("Horizontal", 3))
sketch6.addConstraint(Sketcher.Constraint("DistanceY", 0, 1, 0, 2, Q("0.5 in")))
sketch6.addConstraint(Sketcher.Constraint("DistanceX", 1, 1, 1, 2, Q("0.13 in")))
sketch6.addConstraint(Sketcher.Constraint("DistanceX", 0, 2, -1, 1, Q("0.065 in")))
sketch6.addConstraint(Sketcher.Constraint("DistanceY", 0, 2, -1, 1, Q("6.625 in")))
sketch6.setExpression("Constraints[8]", "Params.sketch6_height")
sketch6.setExpression("Constraints[9]", "Params.sketch6_width")
pad4 = body.newObject("PartDesign::Pad", "Pad003")
pad4.Profile = sketch6
pad4.setExpression("Length", "Params.pad4_length")
pad4.Reversed = True

# Sketch on YZ plane
sketch7 = body.newObject("Sketcher::SketchObject", "Sketch006")
sketch7.AttachmentSupport = (doc.getObject("YZ_Plane"), [""])
sketch7.MapMode = "FlatFace"
sketch7.AttachmentOffset = App.Placement(V(0, 0, 0.065 * 25.4), App.Rotation())
sketch7.addGeometry(Part.LineSegment(V(8.255, -168.275, 0), V(25.4, -180.975, 0)), False)
sketch7.addGeometry(Part.LineSegment(V(25.4, -180.975, 0), V(25.4, -168.275, 0)), False)
sketch7.addGeometry(Part.LineSegment(V(25.4, -168.275, 0), V(8.255, -168.275, 0)), False)
sketch7.addConstraint(Sketcher.Constraint("Coincident", 0, 2, 1, 1))
sketch7.addConstraint(Sketcher.Constraint("Coincident", 1, 2, 2, 1))
sketch7.addConstraint(Sketcher.Constraint("Coincident", 2, 2, 0, 1))
sketch7.addConstraint(Sketcher.Constraint("Vertical", 1))
sketch7.addConstraint(Sketcher.Constraint("Horizontal", 2))
sketch7.addConstraint(Sketcher.Constraint("DistanceY", 1, 1, 1, 2, Q("0.5 in")))
sketch7.addConstraint(Sketcher.Constraint("DistanceX", -1, 1, 0, 2, Q("1 in")))
sketch7.addConstraint(Sketcher.Constraint("DistanceX", 2, 2, 2, 1, Q("0.675 in")))
sketch7.addConstraint(Sketcher.Constraint("DistanceY", 0, 2, -1, 1, Q("7.125 in")))
sketch7.setExpression("Constraints[5]", "Params.sketch7_height")
sketch7.setExpression("Constraints[7]", "Params.sketch7_width")
pocket3 = body.newObject("PartDesign::Pocket", "Pocket002")
pocket3.Profile = sketch7
pocket3.setExpression("Length", "Params.pocket3_length")
doc.recompute()

fillet = body.newObject("PartDesign::Fillet", "Fillet")
fillet.Base = (pocket3, edges_at(pocket3, [
    (-1.651, 4.128, -166.629),
    (-1.651, 4.128, -169.921),
    (-1.651, 12.7, -180.975),
    (1.651, 12.7, -180.975),
    (1.651, 4.128, -169.921),
    (1.651, 4.128, -166.629),
    (1.651, 4.128, -144.671),
    (144.671, 4.128, -1.651),
    (166.629, 4.128, -1.651),
    (169.921, 4.128, -1.651),
    (180.975, 12.7, -1.651),
    (180.975, 12.7, 1.651),
    (169.921, 4.128, 1.651),
    (166.629, 4.128, 1.651),
    (14.895, 4.128, 1.651),
    (-1.651, 4.128, -14.895),
    (61.718, 4.128, -81.012),
    (1.651, 4.128, -141.079),
    (1.651, 4.128, -81.012),
    (77.202, 4.128, -1.651),
    (77.202, 4.128, -65.528),
    (65.528, 4.128, -77.202),
    (1.651, 4.128, -77.202),
    (1.651, 4.128, -14.895),
    (14.895, 4.128, -1.651),
    (141.079, 4.128, -1.651),
    (81.012, 4.128, -61.718),
    (81.012, 4.128, -1.651),
]))
fillet.setExpression("Radius", "Params.fillet_radius")

doc.recompute()
